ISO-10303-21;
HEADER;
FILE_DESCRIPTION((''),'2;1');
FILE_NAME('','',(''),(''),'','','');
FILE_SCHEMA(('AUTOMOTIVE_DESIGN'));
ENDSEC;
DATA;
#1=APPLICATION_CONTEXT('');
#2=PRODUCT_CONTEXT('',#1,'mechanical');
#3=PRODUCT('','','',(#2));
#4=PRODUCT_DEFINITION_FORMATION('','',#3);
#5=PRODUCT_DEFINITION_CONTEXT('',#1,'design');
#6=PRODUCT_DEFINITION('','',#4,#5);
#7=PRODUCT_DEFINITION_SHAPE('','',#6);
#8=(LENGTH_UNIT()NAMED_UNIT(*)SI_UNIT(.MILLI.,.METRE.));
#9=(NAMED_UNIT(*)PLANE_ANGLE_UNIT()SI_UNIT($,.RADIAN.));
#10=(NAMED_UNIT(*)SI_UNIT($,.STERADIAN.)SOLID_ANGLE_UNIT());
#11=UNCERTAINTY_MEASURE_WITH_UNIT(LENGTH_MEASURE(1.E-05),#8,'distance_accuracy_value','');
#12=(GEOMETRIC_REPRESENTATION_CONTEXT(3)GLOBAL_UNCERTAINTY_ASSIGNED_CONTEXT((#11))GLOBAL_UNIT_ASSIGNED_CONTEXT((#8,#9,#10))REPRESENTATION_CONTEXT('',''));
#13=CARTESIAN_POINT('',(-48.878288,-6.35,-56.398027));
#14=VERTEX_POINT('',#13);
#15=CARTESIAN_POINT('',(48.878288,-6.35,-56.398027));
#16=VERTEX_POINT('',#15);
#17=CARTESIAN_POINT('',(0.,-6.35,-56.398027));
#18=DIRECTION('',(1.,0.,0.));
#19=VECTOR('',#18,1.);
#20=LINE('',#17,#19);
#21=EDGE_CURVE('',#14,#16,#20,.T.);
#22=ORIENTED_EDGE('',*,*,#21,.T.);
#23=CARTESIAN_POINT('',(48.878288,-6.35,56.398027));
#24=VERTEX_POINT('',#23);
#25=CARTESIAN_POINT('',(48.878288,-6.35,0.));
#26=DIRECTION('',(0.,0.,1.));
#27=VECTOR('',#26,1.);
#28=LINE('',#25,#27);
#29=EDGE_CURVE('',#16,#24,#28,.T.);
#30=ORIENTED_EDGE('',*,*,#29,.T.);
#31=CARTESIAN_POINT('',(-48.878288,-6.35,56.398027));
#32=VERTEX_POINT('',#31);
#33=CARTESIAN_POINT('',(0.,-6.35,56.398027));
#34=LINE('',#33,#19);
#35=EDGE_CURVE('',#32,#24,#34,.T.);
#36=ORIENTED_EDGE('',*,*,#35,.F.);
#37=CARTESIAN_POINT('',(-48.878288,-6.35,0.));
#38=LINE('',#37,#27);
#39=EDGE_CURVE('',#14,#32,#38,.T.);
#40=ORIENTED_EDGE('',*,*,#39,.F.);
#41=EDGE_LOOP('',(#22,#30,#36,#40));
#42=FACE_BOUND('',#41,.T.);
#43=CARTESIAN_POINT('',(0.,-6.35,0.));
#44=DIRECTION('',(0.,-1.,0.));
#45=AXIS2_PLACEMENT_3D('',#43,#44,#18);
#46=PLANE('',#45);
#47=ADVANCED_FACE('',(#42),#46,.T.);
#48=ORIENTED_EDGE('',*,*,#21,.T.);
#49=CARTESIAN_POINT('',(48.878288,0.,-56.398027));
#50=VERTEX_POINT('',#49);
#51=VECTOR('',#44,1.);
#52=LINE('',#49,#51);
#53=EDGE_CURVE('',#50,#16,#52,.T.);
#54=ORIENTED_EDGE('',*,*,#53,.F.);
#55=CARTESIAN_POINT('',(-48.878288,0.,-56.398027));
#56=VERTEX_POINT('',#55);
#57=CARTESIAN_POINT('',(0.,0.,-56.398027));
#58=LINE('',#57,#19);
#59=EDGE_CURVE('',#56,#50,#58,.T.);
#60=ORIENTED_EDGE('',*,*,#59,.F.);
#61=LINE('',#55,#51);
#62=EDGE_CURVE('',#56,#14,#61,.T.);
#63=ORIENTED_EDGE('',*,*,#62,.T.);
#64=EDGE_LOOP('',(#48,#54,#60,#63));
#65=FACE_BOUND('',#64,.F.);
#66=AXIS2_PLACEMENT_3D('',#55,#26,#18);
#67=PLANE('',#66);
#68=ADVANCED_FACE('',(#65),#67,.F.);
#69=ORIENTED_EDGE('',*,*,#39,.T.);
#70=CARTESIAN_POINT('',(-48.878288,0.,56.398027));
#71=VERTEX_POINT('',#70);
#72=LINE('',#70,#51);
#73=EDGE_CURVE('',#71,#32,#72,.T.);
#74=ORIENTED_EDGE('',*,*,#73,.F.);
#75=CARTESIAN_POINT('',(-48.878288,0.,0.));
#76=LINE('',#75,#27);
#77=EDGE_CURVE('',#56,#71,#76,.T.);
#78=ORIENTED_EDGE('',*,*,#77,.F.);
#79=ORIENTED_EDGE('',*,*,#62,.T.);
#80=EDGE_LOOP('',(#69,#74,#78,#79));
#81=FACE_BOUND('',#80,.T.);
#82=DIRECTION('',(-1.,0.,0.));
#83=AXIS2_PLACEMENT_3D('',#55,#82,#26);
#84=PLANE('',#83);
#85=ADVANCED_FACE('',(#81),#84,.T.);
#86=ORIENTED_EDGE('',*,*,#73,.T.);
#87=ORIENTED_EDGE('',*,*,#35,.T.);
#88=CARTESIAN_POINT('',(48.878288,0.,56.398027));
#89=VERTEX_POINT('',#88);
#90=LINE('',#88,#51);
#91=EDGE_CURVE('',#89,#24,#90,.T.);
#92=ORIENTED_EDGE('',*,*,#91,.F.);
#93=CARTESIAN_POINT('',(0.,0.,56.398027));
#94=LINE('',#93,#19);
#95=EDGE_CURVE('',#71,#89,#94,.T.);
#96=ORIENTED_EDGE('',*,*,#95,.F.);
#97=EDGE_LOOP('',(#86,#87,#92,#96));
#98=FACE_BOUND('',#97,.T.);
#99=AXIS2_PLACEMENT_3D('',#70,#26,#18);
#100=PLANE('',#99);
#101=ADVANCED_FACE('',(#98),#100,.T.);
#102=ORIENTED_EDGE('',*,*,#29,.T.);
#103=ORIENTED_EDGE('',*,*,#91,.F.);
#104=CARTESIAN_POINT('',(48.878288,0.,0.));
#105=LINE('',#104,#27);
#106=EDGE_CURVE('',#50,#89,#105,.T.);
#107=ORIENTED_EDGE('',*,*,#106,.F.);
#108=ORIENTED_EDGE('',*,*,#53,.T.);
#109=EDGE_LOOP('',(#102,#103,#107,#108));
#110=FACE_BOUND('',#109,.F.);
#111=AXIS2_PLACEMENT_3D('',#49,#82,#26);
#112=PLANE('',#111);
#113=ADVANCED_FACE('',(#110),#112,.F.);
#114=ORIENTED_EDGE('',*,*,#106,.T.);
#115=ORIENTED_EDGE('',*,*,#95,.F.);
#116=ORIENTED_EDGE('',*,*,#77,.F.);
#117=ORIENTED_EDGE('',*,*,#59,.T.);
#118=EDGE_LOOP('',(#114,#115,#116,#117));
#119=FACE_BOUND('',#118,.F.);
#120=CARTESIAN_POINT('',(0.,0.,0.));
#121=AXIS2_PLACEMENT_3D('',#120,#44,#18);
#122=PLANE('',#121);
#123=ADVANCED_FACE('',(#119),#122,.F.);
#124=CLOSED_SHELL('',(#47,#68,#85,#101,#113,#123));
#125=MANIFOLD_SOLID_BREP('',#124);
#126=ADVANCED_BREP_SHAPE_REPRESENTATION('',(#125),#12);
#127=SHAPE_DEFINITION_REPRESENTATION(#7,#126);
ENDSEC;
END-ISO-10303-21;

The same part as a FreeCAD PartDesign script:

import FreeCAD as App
import Part
import Sketcher
Q = App.Units.Quantity

doc = App.newDocument("Part")
body = doc.addObject("PartDesign::Body", "Body")

# Sketch on XZ plane
sketch1 = doc.addObject("Sketcher::SketchObject", "Sketch")
body.addObject(sketch1)
sketch1.AttachmentSupport = (doc.XZ_Plane, [""])
sketch1.MapMode = "FlatFace"
sketch1.addGeometry(Part.LineSegment(App.Vector(-48.878288, 56.398027, 0), App.Vector(-48.878288, -56.398027, 0)), False)
sketch1.addGeometry(Part.LineSegment(App.Vector(-48.878288, -56.398027, 0), App.Vector(48.878288, -56.398027, 0)), False)
sketch1.addGeometry(Part.LineSegment(App.Vector(48.878288, -56.398027, 0), App.Vector(48.878288, 56.398027, 0)), False)
sketch1.addGeometry(Part.LineSegment(App.Vector(48.878288, 56.398027, 0), App.Vector(-48.878288, 56.398027, 0)), False)
sketch1.addConstraint(Sketcher.Constraint("Coincident", 0, 2, 1, 1))
sketch1.addConstraint(Sketcher.Constraint("Coincident", 1, 2, 2, 1))
sketch1.addConstraint(Sketcher.Constraint("Coincident", 2, 2, 3, 1))
sketch1.addConstraint(Sketcher.Constraint("Coincident", 3, 2, 0, 1))
sketch1.addConstraint(Sketcher.Constraint("Vertical", 0))
sketch1.addConstraint(Sketcher.Constraint("Horizontal", 1))
sketch1.addConstraint(Sketcher.Constraint("Vertical", 2))
sketch1.addConstraint(Sketcher.Constraint("Horizontal", 3))
sketch1.addConstraint(Sketcher.Constraint("Symmetric", 0, 2, 2, 2, -1, 1))
sketch1.addConstraint(Sketcher.Constraint("DistanceX", 1, 1, 1, 2, Q("97.756576 mm")))
sketch1.addConstraint(Sketcher.Constraint("DistanceY", 0, 2, 0, 1, Q("112.796054 mm")))
pad1 = doc.addObject("PartDesign::Pad", "Pad")
body.addObject(pad1)
pad1.Profile = sketch1
pad1.Length = Q("0.25 in")

doc.recompute()
